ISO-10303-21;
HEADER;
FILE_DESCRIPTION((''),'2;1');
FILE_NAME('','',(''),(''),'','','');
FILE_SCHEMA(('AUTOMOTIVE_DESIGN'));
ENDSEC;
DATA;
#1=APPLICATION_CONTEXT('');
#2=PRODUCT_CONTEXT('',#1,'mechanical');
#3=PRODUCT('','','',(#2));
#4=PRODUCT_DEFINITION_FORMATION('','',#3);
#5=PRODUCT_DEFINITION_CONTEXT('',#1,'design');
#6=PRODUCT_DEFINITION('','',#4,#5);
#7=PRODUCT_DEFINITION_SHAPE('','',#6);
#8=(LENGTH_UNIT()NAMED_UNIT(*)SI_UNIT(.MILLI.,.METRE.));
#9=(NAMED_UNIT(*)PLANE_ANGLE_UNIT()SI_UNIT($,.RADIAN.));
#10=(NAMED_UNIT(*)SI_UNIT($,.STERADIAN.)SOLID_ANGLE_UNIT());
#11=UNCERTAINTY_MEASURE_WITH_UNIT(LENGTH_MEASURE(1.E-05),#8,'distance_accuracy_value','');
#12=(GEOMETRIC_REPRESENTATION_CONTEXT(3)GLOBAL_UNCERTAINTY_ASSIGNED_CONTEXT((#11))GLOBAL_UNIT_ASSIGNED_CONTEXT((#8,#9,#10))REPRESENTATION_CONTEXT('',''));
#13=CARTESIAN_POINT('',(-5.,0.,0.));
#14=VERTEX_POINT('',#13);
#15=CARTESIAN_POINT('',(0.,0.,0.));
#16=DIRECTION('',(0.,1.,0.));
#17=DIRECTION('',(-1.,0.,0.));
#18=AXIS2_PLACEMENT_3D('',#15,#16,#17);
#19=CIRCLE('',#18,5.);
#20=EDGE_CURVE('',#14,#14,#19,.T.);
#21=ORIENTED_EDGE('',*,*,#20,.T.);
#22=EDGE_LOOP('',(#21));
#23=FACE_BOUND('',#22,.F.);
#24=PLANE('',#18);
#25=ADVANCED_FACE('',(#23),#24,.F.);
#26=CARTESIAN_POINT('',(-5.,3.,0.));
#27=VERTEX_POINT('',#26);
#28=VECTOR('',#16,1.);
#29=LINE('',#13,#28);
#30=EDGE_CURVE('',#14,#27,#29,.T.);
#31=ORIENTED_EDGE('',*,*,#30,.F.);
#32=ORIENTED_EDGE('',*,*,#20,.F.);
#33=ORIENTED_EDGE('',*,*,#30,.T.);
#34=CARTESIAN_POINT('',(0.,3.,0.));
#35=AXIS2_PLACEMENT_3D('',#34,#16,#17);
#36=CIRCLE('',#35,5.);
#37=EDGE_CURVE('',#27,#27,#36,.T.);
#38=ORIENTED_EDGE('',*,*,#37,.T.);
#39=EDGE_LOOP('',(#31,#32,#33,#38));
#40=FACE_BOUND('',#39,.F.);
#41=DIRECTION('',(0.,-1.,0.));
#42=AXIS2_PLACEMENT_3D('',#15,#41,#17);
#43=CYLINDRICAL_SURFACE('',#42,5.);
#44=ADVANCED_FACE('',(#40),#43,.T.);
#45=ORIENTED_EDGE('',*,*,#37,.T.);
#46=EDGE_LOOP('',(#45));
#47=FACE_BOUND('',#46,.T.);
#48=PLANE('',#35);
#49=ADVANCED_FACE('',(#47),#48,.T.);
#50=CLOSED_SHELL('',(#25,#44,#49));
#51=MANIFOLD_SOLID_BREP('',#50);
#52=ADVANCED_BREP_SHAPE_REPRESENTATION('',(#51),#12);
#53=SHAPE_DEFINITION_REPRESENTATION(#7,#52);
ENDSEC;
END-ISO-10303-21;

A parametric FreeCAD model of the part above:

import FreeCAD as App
import Part
import Sketcher
from FreeCAD import Vector

doc = App.newDocument("Part")
body = doc.addObject("PartDesign::Body", "Body")

sketch1 = doc.addObject("Sketcher::SketchObject", "Sketch")
body.addObject(sketch1)
sketch1.AttachmentSupport = (doc.XZ_Plane, [""])
sketch1.MapMode = "FlatFace"
sketch1.addGeometry(Part.Circle(Vector(0, 0, 0), Vector(0, 0, 1), 5), False)
sketch1.addConstraint([
    Sketcher.Constraint("Coincident", 0, 3, -1, 1),
    Sketcher.Constraint("Diameter", 0, 10.0),
])
pad1 = doc.addObject("PartDesign::Pad", "Pad")
body.addObject(pad1)
pad1.Profile = sketch1
pad1.Length = 3
pad1.Reversed = True

doc.recompute()
